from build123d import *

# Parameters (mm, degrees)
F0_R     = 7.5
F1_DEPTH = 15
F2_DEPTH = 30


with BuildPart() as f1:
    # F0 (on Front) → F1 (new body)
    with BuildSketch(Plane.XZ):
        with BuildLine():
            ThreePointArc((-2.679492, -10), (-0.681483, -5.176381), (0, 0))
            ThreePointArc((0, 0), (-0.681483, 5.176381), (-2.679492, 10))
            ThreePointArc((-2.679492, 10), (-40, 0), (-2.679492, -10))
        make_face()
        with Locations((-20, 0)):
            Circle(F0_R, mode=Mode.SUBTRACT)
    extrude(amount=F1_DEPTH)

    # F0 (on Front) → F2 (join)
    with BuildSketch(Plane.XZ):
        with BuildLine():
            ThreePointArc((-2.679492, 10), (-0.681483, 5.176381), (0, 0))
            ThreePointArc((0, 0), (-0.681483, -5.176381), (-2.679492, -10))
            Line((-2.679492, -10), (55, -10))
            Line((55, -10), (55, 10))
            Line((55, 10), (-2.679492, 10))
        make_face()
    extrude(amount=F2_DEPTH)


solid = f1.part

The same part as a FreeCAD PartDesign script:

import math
import FreeCAD as App
import Part
import Sketcher

doc = App.newDocument("Part")
body = doc.addObject("PartDesign::Body", "Body")

# Sketch on XZ plane
sketch1 = body.newObject("Sketcher::SketchObject", "Sketch")
sketch1.AttachmentSupport = (doc.getObject("XZ_Plane"), [""])
sketch1.MapMode = "FlatFace"
sketch1.addGeometry(Part.ArcOfCircle(Part.Circle(App.Vector(-20, 0, 0), App.Vector(0, 0, 1), 20), math.radians(-30), math.radians(0)), False)
sketch1.addGeometry(Part.ArcOfCircle(Part.Circle(App.Vector(-20, 0, 0), App.Vector(0, 0, 1), 20), math.radians(0), math.radians(30)), False)
sketch1.addGeometry(Part.ArcOfCircle(Part.Circle(App.Vector(-20, 0, 0), App.Vector(0, 0, 1), 20), math.radians(30), math.radians(330)), False)
sketch1.addGeometry(Part.Circle(App.Vector(-20, 0, 0), App.Vector(0, 0, 1), 8), False)
sketch1.addConstraint(Sketcher.Constraint("Tangent", 0, 2, 1, 1))
sketch1.addConstraint(Sketcher.Constraint("Tangent", 1, 2, 2, 1))
sketch1.addConstraint(Sketcher.Constraint("Tangent", 2, 2, 0, 1))
sketch1.addConstraint(Sketcher.Constraint("Coincident", 0, 2, -1, 1))
sketch1.addConstraint(Sketcher.Constraint("Coincident", 3, 3, 2, 3))
sketch1.addConstraint(Sketcher.Constraint("Symmetric", 1, 2, 2, 2, -1))
sketch1.addConstraint(Sketcher.Constraint("Diameter", 3, 15.0))
sketch1.addConstraint(Sketcher.Constraint("Radius", 2, 20.0))
sketch1.addConstraint(Sketcher.Constraint("DistanceY", -1, 1, 1, 2, 10.0))
pad1 = body.newObject("PartDesign::Pad", "Pad")
pad1.Profile = sketch1
pad1.Length = 15

# Sketch on XZ plane
sketch2 = body.newObject("Sketcher::SketchObject", "Sketch001")
sketch2.AttachmentSupport = (doc.getObject("XZ_Plane"), [""])
sketch2.MapMode = "FlatFace"
sketch2.addGeometry(Part.ArcOfCircle(Part.Circle(App.Vector(-20, 0, 0), App.Vector(0, 0, 1), 20), math.radians(0), math.radians(30)), False)
sketch2.addGeometry(Part.ArcOfCircle(Part.Circle(App.Vector(-20, 0, 0), App.Vector(0, 0, 1), 20), math.radians(-30), math.radians(0)), False)
sketch2.addGeometry(Part.LineSegment(App.Vector(-3, -10, 0), App.Vector(55, -10, 0)), False)
sketch2.addGeometry(Part.LineSegment(App.Vector(55, -10, 0), App.Vector(55, 10, 0)), False)
sketch2.addGeometry(Part.LineSegment(App.Vector(55, 10, 0), App.Vector(-3, 10, 0)), False)
sketch2.addConstraint(Sketcher.Constraint("Tangent", 0, 1, 1, 2))
sketch2.addConstraint(Sketcher.Constraint("Coincident", 1, 1, 2, 1))
sketch2.addConstraint(Sketcher.Constraint("Coincident", 2, 2, 3, 1))
sketch2.addConstraint(Sketcher.Constraint("Coincident", 3, 2, 4, 1))
sketch2.addConstraint(Sketcher.Constraint("Coincident", 4, 2, 0, 2))
sketch2.addConstraint(Sketcher.Constraint("Horizontal", 2))
sketch2.addConstraint(Sketcher.Constraint("Vertical", 3))
sketch2.addConstraint(Sketcher.Constraint("Horizontal", 4))
sketch2.addConstraint(Sketcher.Constraint("Coincident", 0, 1, -1, 1))
sketch2.addConstraint(Sketcher.Constraint("Equal", 0, 1))
sketch2.addConstraint(Sketcher.Constraint("Symmetric", 1, 1, 4, 2, -1))
sketch2.addConstraint(Sketcher.Constraint("DistanceY", 3, 1, 3, 2, 20.0))
sketch2.addConstraint(Sketcher.Constraint("DistanceX", -1, 1, 2, 2, 55.0))
sketch2.addConstraint(Sketcher.Constraint("Radius", 0, 19.999985))
pad2 = body.newObject("PartDesign::Pad", "Pad001")
pad2.Profile = sketch2
pad2.Length = 30

doc.recompute()
